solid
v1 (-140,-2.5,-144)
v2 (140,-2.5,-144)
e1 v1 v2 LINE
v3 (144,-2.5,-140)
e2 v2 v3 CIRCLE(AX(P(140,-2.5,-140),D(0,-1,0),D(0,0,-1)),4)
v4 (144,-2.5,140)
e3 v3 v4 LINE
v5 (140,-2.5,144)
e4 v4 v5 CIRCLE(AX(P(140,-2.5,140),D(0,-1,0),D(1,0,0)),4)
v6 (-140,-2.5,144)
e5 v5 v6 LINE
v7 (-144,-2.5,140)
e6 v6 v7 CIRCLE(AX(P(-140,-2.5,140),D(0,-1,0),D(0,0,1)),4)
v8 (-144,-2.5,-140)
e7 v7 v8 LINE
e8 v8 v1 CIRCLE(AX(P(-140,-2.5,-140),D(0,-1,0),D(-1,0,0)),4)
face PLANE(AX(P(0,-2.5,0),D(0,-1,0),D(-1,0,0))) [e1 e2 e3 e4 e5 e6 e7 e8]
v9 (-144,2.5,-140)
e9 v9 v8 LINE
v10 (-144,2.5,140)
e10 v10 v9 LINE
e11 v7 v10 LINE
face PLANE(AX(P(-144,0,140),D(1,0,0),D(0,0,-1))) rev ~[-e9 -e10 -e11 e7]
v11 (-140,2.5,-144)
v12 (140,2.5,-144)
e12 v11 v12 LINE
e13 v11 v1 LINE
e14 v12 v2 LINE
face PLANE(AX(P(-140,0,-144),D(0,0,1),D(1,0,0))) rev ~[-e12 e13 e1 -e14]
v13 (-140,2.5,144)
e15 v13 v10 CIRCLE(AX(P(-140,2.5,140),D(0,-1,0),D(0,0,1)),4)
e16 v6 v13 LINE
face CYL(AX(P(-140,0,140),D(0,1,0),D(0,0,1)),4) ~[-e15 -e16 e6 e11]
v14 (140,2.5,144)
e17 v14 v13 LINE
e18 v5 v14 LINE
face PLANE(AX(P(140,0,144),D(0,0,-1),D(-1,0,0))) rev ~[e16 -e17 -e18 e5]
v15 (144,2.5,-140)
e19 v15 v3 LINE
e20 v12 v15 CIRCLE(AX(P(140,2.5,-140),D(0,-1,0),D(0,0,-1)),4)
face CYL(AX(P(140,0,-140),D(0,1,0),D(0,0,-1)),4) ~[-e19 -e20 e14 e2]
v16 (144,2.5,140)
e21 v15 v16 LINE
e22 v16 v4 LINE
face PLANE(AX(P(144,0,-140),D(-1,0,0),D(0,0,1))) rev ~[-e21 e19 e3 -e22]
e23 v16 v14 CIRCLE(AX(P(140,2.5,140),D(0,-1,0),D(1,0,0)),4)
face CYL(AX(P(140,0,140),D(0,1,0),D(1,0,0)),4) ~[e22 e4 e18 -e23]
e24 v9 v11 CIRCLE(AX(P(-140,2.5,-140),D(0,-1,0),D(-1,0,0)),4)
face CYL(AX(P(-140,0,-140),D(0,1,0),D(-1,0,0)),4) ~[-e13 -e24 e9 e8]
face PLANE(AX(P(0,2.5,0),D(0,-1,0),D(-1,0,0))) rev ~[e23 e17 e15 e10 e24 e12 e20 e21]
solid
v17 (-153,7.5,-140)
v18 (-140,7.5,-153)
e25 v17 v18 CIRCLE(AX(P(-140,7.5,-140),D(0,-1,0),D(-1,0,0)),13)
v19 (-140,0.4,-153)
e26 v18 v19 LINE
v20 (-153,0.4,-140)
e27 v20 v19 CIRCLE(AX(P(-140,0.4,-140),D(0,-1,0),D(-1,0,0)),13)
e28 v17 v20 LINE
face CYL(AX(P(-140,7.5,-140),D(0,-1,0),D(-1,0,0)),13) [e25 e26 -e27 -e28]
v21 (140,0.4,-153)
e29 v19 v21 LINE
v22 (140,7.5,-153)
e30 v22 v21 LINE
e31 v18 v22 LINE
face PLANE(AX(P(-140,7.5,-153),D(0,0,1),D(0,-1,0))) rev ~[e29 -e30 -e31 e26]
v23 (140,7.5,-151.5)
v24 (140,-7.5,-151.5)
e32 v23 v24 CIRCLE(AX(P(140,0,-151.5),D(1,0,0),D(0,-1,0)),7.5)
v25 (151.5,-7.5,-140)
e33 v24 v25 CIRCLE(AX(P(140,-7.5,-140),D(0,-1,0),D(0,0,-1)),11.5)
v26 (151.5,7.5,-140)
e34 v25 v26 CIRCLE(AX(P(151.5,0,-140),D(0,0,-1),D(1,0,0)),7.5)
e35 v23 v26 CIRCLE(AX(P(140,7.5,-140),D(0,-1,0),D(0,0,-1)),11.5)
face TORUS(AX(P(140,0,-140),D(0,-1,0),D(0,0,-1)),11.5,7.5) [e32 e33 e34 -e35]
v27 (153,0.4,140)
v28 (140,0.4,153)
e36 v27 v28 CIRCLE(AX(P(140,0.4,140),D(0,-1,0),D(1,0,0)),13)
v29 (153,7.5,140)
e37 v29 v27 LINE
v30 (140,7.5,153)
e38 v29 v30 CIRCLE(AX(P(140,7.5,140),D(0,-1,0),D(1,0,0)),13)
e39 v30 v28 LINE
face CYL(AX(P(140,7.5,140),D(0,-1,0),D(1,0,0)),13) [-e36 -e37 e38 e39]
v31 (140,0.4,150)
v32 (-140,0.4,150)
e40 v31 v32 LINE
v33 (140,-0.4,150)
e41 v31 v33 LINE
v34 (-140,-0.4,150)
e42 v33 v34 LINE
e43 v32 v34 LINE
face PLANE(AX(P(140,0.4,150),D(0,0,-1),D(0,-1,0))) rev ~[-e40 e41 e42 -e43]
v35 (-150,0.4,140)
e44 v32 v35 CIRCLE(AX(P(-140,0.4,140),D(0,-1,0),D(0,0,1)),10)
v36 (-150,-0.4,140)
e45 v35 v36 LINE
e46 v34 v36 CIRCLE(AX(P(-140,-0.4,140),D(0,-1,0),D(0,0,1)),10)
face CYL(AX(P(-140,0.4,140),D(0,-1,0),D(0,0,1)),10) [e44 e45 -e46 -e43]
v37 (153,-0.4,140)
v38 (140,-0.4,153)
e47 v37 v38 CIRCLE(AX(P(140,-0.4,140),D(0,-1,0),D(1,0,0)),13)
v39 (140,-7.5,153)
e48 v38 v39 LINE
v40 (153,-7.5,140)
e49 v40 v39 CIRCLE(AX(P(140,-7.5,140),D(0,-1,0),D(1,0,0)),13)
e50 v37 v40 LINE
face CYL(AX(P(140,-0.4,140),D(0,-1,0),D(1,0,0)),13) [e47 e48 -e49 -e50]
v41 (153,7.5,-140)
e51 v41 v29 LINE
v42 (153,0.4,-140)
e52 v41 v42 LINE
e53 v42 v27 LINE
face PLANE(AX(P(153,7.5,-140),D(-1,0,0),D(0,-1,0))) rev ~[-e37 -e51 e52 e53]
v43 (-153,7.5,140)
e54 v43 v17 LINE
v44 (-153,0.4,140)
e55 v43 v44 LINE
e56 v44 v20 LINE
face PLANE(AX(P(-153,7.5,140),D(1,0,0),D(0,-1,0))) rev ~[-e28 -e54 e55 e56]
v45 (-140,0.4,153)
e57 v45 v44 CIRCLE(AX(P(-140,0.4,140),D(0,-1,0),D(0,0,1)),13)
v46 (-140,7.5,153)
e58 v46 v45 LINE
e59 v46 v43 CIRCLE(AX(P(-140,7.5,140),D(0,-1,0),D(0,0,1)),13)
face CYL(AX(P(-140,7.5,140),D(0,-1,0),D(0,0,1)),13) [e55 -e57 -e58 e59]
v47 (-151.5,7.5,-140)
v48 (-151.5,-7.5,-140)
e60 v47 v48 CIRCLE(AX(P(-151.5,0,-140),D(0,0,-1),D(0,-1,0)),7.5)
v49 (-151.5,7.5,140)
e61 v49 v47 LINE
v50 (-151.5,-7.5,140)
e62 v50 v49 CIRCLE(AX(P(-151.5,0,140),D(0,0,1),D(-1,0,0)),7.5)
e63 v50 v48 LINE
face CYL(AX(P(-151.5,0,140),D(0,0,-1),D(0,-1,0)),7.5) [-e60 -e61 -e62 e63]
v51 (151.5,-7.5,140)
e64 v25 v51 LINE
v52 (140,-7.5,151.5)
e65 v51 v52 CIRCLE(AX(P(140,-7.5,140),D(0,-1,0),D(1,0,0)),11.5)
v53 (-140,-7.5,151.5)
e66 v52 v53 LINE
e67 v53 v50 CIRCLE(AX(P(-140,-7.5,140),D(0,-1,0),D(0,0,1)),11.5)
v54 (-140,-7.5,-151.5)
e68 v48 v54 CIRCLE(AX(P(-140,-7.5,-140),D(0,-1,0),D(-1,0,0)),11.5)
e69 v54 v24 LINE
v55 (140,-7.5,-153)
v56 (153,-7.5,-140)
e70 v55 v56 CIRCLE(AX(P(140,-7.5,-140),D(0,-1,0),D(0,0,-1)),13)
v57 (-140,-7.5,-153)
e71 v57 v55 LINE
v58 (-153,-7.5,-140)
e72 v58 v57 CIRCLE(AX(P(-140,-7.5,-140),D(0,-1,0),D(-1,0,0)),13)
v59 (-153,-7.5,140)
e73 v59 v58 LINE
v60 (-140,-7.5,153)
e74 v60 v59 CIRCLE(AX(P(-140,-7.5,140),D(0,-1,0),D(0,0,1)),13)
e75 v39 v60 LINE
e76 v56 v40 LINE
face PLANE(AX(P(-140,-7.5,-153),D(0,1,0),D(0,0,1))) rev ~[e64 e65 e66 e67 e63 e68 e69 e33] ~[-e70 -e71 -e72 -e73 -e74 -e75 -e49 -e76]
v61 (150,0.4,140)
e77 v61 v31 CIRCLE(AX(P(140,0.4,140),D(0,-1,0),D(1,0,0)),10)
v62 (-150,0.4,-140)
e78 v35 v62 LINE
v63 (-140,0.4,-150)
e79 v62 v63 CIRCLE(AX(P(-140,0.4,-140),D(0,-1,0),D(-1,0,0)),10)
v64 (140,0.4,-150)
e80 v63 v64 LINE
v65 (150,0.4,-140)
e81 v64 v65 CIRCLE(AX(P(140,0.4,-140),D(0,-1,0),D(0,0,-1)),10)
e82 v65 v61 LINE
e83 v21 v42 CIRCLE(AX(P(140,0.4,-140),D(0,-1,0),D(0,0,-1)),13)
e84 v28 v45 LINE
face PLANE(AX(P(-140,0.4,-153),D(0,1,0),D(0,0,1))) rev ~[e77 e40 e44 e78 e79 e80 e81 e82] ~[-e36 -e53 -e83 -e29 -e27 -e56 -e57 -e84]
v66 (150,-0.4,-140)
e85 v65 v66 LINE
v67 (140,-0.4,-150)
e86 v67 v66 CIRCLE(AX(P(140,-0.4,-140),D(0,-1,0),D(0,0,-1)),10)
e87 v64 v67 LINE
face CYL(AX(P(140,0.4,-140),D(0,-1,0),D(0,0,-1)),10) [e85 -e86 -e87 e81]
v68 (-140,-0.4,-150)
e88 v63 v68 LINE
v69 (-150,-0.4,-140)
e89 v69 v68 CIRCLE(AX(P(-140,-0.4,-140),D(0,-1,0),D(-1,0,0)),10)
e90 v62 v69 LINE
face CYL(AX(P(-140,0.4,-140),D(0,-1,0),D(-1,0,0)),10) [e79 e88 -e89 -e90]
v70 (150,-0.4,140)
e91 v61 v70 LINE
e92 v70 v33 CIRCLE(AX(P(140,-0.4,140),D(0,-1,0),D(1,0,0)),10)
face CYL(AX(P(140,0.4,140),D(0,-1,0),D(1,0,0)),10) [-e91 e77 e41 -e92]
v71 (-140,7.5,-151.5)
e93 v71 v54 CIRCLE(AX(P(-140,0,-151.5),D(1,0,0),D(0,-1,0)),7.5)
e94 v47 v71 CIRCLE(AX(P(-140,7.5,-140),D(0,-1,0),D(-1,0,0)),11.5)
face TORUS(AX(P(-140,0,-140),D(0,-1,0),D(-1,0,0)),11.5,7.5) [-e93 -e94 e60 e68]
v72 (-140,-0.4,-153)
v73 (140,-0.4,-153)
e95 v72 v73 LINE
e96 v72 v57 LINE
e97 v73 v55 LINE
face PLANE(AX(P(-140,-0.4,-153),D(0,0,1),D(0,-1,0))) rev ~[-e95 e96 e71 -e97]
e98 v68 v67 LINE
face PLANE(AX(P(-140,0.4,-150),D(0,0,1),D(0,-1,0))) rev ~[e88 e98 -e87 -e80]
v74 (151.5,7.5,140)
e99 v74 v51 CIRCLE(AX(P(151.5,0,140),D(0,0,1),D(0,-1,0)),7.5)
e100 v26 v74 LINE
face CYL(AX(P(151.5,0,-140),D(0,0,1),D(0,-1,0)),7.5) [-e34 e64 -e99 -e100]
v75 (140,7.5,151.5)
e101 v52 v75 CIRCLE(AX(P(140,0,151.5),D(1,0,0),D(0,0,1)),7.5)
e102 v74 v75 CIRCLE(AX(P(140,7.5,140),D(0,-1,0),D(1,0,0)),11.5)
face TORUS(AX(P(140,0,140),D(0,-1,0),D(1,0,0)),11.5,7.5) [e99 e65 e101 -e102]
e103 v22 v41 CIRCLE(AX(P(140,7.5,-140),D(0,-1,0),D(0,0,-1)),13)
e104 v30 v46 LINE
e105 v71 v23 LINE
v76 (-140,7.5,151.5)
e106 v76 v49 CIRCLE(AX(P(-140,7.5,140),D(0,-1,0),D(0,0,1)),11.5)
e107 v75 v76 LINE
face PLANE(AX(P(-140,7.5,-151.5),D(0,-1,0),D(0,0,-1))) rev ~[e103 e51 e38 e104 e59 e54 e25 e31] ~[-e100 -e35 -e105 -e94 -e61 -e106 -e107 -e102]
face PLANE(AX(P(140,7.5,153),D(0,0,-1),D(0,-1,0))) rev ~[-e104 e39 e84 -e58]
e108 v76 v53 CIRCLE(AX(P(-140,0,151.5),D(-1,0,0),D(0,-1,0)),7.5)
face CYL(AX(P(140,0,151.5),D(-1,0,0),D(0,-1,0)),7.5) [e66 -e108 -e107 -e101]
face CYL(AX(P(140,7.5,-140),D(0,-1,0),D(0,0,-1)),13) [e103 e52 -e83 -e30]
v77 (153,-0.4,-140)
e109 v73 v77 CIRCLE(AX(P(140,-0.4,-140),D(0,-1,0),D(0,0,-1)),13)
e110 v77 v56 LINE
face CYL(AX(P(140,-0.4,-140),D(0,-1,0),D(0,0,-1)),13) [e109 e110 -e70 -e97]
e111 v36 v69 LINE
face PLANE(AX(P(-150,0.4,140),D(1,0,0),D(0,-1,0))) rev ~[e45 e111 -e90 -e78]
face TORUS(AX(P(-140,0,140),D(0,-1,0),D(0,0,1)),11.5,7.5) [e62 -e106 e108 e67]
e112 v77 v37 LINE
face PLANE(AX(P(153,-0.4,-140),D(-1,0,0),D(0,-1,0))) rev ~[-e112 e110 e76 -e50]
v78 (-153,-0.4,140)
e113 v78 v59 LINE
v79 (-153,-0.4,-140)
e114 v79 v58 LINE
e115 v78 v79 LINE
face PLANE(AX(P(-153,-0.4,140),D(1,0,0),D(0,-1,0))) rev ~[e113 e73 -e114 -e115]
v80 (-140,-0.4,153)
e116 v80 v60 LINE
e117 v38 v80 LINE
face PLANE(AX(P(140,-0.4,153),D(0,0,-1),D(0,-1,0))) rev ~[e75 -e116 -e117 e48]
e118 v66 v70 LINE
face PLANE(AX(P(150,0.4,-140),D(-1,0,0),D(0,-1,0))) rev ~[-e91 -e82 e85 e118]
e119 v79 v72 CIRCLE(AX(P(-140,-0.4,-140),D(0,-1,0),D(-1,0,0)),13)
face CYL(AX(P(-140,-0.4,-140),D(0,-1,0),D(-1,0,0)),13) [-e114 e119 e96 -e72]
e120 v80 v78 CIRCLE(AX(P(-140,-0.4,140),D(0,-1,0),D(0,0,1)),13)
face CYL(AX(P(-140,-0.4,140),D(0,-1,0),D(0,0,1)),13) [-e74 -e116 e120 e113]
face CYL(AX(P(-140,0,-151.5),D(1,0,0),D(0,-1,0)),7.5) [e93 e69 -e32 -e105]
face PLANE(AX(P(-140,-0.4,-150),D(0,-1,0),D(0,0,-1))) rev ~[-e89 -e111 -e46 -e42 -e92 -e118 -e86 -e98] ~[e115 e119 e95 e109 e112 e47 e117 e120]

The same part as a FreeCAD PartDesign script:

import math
import FreeCAD as App
import Part
import Sketcher
from FreeCAD import Vector
Q = App.Units.Quantity

doc = App.newDocument("Part")
params = doc.addObject("Spreadsheet::Sheet", "Params")
for row, (alias, value) in enumerate([
    ("sketch1_radius", "7.5 mm"),
    ("sketch1_width", "3 mm"),
    ("sketch1_width2", "1.5 mm"),
    ("sketch1_height", "0.8 mm"),
    ("sketch2_radius", "10 mm"),
    ("sketch2_width", "280 mm"),
    ("sketch3_radius", "4 mm"),
    ("sketch3_width", "280 mm"),
    ("pad1_length", "5 mm"),
], start=1):
    params.set(f"A{row}", alias)
    params.set(f"B{row}", "=" + value)
    params.setAlias(f"B{row}", alias)

body = doc.addObject("PartDesign::Body", "Body")

# Sketch on XY plane
sketch1 = body.newObject("Sketcher::SketchObject", "Sketch")
sketch1.AttachmentSupport = (doc.getObject("XY_Plane"), [""])
sketch1.MapMode = "FlatFace"
sketch1.addGeometry(Part.LineSegment(Vector(-150, 0.4, 0), Vector(-150, -0.4, 0)), False)
sketch1.addGeometry(Part.LineSegment(Vector(-150, -0.4, 0), Vector(-153, -0.4, 0)), False)
sketch1.addGeometry(Part.LineSegment(Vector(-153, -0.4, 0), Vector(-153, -7.5, 0)), False)
sketch1.addGeometry(Part.LineSegment(Vector(-153, -7.5, 0), Vector(-151.5, -7.5, 0)), False)
sketch1.addGeometry(Part.ArcOfCircle(Part.Circle(Vector(-151.5, 0, 0), Vector(0, 0, 1), 7.5), math.radians(-90), math.radians(90)), False)
sketch1.addGeometry(Part.LineSegment(Vector(-151.5, 7.5, 0), Vector(-153, 7.5, 0)), False)
sketch1.addGeometry(Part.LineSegment(Vector(-153, 7.5, 0), Vector(-153, 0.4, 0)), False)
sketch1.addGeometry(Part.LineSegment(Vector(-153, 0.4, 0), Vector(-150, 0.4, 0)), False)
sketch1.addConstraint(Sketcher.Constraint("Coincident", 0, 2, 1, 1))
sketch1.addConstraint(Sketcher.Constraint("Coincident", 1, 2, 2, 1))
sketch1.addConstraint(Sketcher.Constraint("Coincident", 2, 2, 3, 1))
sketch1.addConstraint(Sketcher.Constraint("Tangent", 3, 2, 4, 1))
sketch1.addConstraint(Sketcher.Constraint("Tangent", 4, 2, 5, 1))
sketch1.addConstraint(Sketcher.Constraint("Coincident", 5, 2, 6, 1))
sketch1.addConstraint(Sketcher.Constraint("Coincident", 6, 2, 7, 1))
sketch1.addConstraint(Sketcher.Constraint("Coincident", 7, 2, 0, 1))
sketch1.addConstraint(Sketcher.Constraint("Vertical", 0))
sketch1.addConstraint(Sketcher.Constraint("Horizontal", 1))
sketch1.addConstraint(Sketcher.Constraint("Vertical", 2))
sketch1.addConstraint(Sketcher.Constraint("Horizontal", 3))
sketch1.addConstraint(Sketcher.Constraint("Horizontal", 5))
sketch1.addConstraint(Sketcher.Constraint("Vertical", 6))
sketch1.addConstraint(Sketcher.Constraint("Horizontal", 7))
sketch1.addConstraint(Sketcher.Constraint("Symmetric", 2, 2, 5, 2, -1))
sketch1.addConstraint(Sketcher.Constraint("Equal", 2, 6))
sketch1.addConstraint(Sketcher.Constraint("Radius", 4, Q("7.5 mm")))
sketch1.addConstraint(Sketcher.Constraint("DistanceX", 1, 2, 1, 1, Q("3 mm")))
sketch1.addConstraint(Sketcher.Constraint("DistanceX", 3, 1, 3, 2, Q("1.5 mm")))
sketch1.addConstraint(Sketcher.Constraint("DistanceY", 0, 2, 0, 1, Q("0.8 mm")))
sketch1.addConstraint(Sketcher.Constraint("DistanceX", 0, 2, -1, 1, Q("150 mm")))
sketch1.setExpression("Constraints[17]", "Params.sketch1_radius")
sketch1.setExpression("Constraints[18]", "Params.sketch1_width")
sketch1.setExpression("Constraints[19]", "Params.sketch1_width2")
sketch1.setExpression("Constraints[20]", "Params.sketch1_height")

# Sketch on XZ plane
sketch2 = body.newObject("Sketcher::SketchObject", "Sketch001")
sketch2.AttachmentSupport = (doc.getObject("XZ_Plane"), [""])
sketch2.MapMode = "FlatFace"
sketch2.addGeometry(Part.LineSegment(Vector(-140, -150, 0), Vector(140, -150, 0)), False)
sketch2.addGeometry(Part.ArcOfCircle(Part.Circle(Vector(140, -140, 0), Vector(0, 0, 1), 10), math.radians(-90), math.radians(0)), False)
sketch2.addGeometry(Part.LineSegment(Vector(150, -140, 0), Vector(150, 140, 0)), False)
sketch2.addGeometry(Part.ArcOfCircle(Part.Circle(Vector(140, 140, 0), Vector(0, 0, 1), 10), math.radians(0), math.radians(90)), False)
sketch2.addGeometry(Part.LineSegment(Vector(140, 150, 0), Vector(-140, 150, 0)), False)
sketch2.addGeometry(Part.ArcOfCircle(Part.Circle(Vector(-140, 140, 0), Vector(0, 0, 1), 10), math.radians(90), math.radians(180)), False)
sketch2.addGeometry(Part.LineSegment(Vector(-150, 140, 0), Vector(-150, -140, 0)), False)
sketch2.addGeometry(Part.ArcOfCircle(Part.Circle(Vector(-140, -140, 0), Vector(0, 0, 1), 10), math.radians(180), math.radians(270)), False)
sketch2.addConstraint(Sketcher.Constraint("Tangent", 0, 2, 1, 1))
sketch2.addConstraint(Sketcher.Constraint("Tangent", 1, 2, 2, 1))
sketch2.addConstraint(Sketcher.Constraint("Tangent", 2, 2, 3, 1))
sketch2.addConstraint(Sketcher.Constraint("Tangent", 3, 2, 4, 1))
sketch2.addConstraint(Sketcher.Constraint("Tangent", 4, 2, 5, 1))
sketch2.addConstraint(Sketcher.Constraint("Tangent", 5, 2, 6, 1))
sketch2.addConstraint(Sketcher.Constraint("Tangent", 6, 2, 7, 1))
sketch2.addConstraint(Sketcher.Constraint("Tangent", 7, 2, 0, 1))
sketch2.addConstraint(Sketcher.Constraint("Horizontal", 0))
sketch2.addConstraint(Sketcher.Constraint("Vertical", 2))
sketch2.addConstraint(Sketcher.Constraint("Horizontal", 4))
sketch2.addConstraint(Sketcher.Constraint("Vertical", 6))
sketch2.addConstraint(Sketcher.Constraint("Equal", 1, 3))
sketch2.addConstraint(Sketcher.Constraint("Equal", 3, 5))
sketch2.addConstraint(Sketcher.Constraint("Equal", 5, 7))
sketch2.addConstraint(Sketcher.Constraint("Symmetric", 1, 3, 5, 3, -1, 1))
sketch2.addConstraint(Sketcher.Constraint("Equal", 4, 2))
sketch2.addConstraint(Sketcher.Constraint("Radius", 1, Q("10 mm")))
sketch2.addConstraint(Sketcher.Constraint("DistanceX", 0, 1, 0, 2, Q("280 mm")))
sketch2.setExpression("Constraints[17]", "Params.sketch2_radius")
sketch2.setExpression("Constraints[18]", "Params.sketch2_width")
doc.recompute()

additivepipe = body.newObject("PartDesign::AdditivePipe", "AdditivePipe")
additivepipe.Profile = sketch1
additivepipe.Spine = (sketch2, ["Edge1", "Edge2", "Edge3", "Edge4", "Edge5", "Edge6", "Edge7", "Edge8"])
body2 = doc.addObject("PartDesign::Body", "Body001")

# Sketch on XZ plane
sketch3 = body2.newObject("Sketcher::SketchObject", "Sketch002")
sketch3.AttachmentSupport = (doc.getObject("XZ_Plane001"), [""])
sketch3.MapMode = "FlatFace"
sketch3.addGeometry(Part.LineSegment(Vector(-144, -140, 0), Vector(-144, 140, 0)), False)
sketch3.addGeometry(Part.ArcOfCircle(Part.Circle(Vector(-140, 140, 0), Vector(0, 0, 1), 4), math.radians(90), math.radians(180)), False)
sketch3.addGeometry(Part.LineSegment(Vector(-140, 144, 0), Vector(140, 144, 0)), False)
sketch3.addGeometry(Part.ArcOfCircle(Part.Circle(Vector(140, 140, 0), Vector(0, 0, 1), 4), math.radians(0), math.radians(90)), False)
sketch3.addGeometry(Part.LineSegment(Vector(144, 140, 0), Vector(144, -140, 0)), False)
sketch3.addGeometry(Part.ArcOfCircle(Part.Circle(Vector(140, -140, 0), Vector(0, 0, 1), 4), math.radians(-90), math.radians(0)), False)
sketch3.addGeometry(Part.LineSegment(Vector(140, -144, 0), Vector(-140, -144, 0)), False)
sketch3.addGeometry(Part.ArcOfCircle(Part.Circle(Vector(-140, -140, 0), Vector(0, 0, 1), 4), math.radians(180), math.radians(270)), False)
sketch3.addConstraint(Sketcher.Constraint("Tangent", 0, 2, 1, 2))
sketch3.addConstraint(Sketcher.Constraint("Tangent", 1, 1, 2, 1))
sketch3.addConstraint(Sketcher.Constraint("Tangent", 2, 2, 3, 2))
sketch3.addConstraint(Sketcher.Constraint("Tangent", 3, 1, 4, 1))
sketch3.addConstraint(Sketcher.Constraint("Tangent", 4, 2, 5, 2))
sketch3.addConstraint(Sketcher.Constraint("Tangent", 5, 1, 6, 1))
sketch3.addConstraint(Sketcher.Constraint("Tangent", 6, 2, 7, 2))
sketch3.addConstraint(Sketcher.Constraint("Tangent", 7, 1, 0, 1))
sketch3.addConstraint(Sketcher.Constraint("Vertical", 0))
sketch3.addConstraint(Sketcher.Constraint("Horizontal", 2))
sketch3.addConstraint(Sketcher.Constraint("Vertical", 4))
sketch3.addConstraint(Sketcher.Constraint("Horizontal", 6))
sketch3.addConstraint(Sketcher.Constraint("Equal", 1, 3))
sketch3.addConstraint(Sketcher.Constraint("Equal", 3, 5))
sketch3.addConstraint(Sketcher.Constraint("Equal", 5, 7))
sketch3.addConstraint(Sketcher.Constraint("Symmetric", 1, 3, 5, 3, -1, 1))
sketch3.addConstraint(Sketcher.Constraint("Equal", 6, 0))
sketch3.addConstraint(Sketcher.Constraint("Radius", 1, Q("4 mm")))
sketch3.addConstraint(Sketcher.Constraint("DistanceX", 2, 1, 2, 2, Q("280 mm")))
sketch3.setExpression("Constraints[17]", "Params.sketch3_radius")
sketch3.setExpression("Constraints[18]", "Params.sketch3_width")
pad1 = body2.newObject("PartDesign::Pad", "Pad")
pad1.Profile = sketch3
pad1.setExpression("Length", "Params.pad1_length")
pad1.Midplane = True

doc.recompute()
